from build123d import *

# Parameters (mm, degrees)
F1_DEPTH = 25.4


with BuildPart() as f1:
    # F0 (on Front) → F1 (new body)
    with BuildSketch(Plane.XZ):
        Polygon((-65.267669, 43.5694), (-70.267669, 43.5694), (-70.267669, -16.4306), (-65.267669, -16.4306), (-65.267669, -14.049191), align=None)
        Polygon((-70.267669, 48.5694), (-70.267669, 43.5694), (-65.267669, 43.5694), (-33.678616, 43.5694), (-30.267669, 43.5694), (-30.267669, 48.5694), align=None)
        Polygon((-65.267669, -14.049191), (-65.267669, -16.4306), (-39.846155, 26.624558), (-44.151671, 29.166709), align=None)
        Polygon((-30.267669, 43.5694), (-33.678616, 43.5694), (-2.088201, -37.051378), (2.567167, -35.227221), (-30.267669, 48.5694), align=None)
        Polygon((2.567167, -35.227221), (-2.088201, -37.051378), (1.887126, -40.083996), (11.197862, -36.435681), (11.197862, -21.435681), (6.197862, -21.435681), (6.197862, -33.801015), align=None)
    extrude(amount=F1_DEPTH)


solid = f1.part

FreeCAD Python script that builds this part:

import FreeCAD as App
import Part
import Sketcher

V = App.Vector
Q = App.Units.Quantity


def add_polygon(sketch, points):
    """Adds a closed chain of lines whose ends are joined by coincident constraints."""
    first, n = sketch.GeometryCount, len(points)
    for a, b in zip(points, points[1:] + points[:1]):
        sketch.addGeometry(Part.LineSegment(App.Vector(*a, 0), App.Vector(*b, 0)), False)
    for i in range(n):
        sketch.addConstraint(Sketcher.Constraint("Coincident", first + i, 2, first + (i + 1) % n, 1))

doc = App.newDocument("Part")
params = doc.addObject("Spreadsheet::Sheet", "Params")
for row, (alias, value) in enumerate([
    ("sketch1_width", "5 mm"),
    ("sketch1_width2", "40 mm"),
    ("sketch1_height", "15 mm"),
    ("sketch1_height2", "65 mm"),
    ("sketch1_length", "50 mm"),
    ("pad1_length", "25.4 mm"),
], start=1):
    params.set(f"A{row}", alias)
    params.set(f"B{row}", "=" + value)
    params.setAlias(f"B{row}", alias)

body = doc.addObject("PartDesign::Body", "Body")

# Sketch on XZ plane
sketch1 = doc.addObject("Sketcher::SketchObject", "Sketch")
body.addObject(sketch1)
sketch1.AttachmentSupport = (doc.XZ_Plane, [""])
sketch1.MapMode = "FlatFace"
add_polygon(sketch1, [(-70.3, -16.4), (-65.3, -16.4), (-39.8, 26.6), (-44.2, 29.2), (-65.3, -14), (-65.3, 43.6), (-33.7, 43.6), (-2.1, -37.1), (1.9, -40.1), (11.2, -36.4), (11.2, -21.4), (6.2, -21.4), (6.2, -33.8), (2.6, -35.2), (-30.3, 48.6), (-70.3, 48.6)])  # lines 0-15
sketch1.addConstraint(Sketcher.Constraint("Horizontal", 0))
sketch1.addConstraint(Sketcher.Constraint("Vertical", 4))
sketch1.addConstraint(Sketcher.Constraint("Horizontal", 5))
sketch1.addConstraint(Sketcher.Constraint("Vertical", 9))
sketch1.addConstraint(Sketcher.Constraint("Horizontal", 10))
sketch1.addConstraint(Sketcher.Constraint("Vertical", 11))
sketch1.addConstraint(Sketcher.Constraint("Horizontal", 14))
sketch1.addConstraint(Sketcher.Constraint("Vertical", 15))
sketch1.addConstraint(Sketcher.Constraint("Perpendicular", 1, 2))
sketch1.addConstraint(Sketcher.Constraint("Perpendicular", 6, 8))
sketch1.addConstraint(Sketcher.Constraint("Perpendicular", 8, 13))
sketch1.addConstraint(Sketcher.Constraint("Vertical", 0, 2, 3, 2))
sketch1.addConstraint(Sketcher.Constraint("Equal", 0, 10))
sketch1.addConstraint(Sketcher.Constraint("Equal", 2, 7))
sketch1.addConstraint(Sketcher.Constraint("DistanceX", 0, 1, 0, 2, Q("5 mm")))
sketch1.addConstraint(Sketcher.Constraint("DistanceX", 14, 2, 14, 1, Q("40 mm")))
sketch1.addConstraint(Sketcher.Constraint("DistanceY", 9, 1, 9, 2, Q("15 mm")))
sketch1.addConstraint(Sketcher.Constraint("DistanceY", 15, 2, 15, 1, Q("65 mm")))
sketch1.addConstraint(Sketcher.Constraint("Distance", 1, Q("50 mm")))
sketch1.addConstraint(Sketcher.Constraint("Distance", 2, Q("5 mm")))
sketch1.addConstraint(Sketcher.Constraint("Distance", 8, Q("10 mm")))
sketch1.addConstraint(Sketcher.Constraint("Distance", 13, Q("90.000001 mm")))
sketch1.addConstraint(Sketcher.Constraint("DistanceY", 0, 2, 4, 2, Q("60 mm")))
sketch1.addConstraint(Sketcher.Constraint("DistanceX", 2, 2, 13, 2, Q("13.884002 mm")))
sketch1.addConstraint(Sketcher.Constraint("DistanceY", 4, 1, 4, 2, Q("57.618591 mm")))
sketch1.addConstraint(Sketcher.Constraint("DistanceY", 0, 2, -1, 1, Q("16.4306 mm")))
sketch1.addConstraint(Sketcher.Constraint("DistanceX", 6, 2, -1, 1, Q("2.088201 mm")))
sketch1.addConstraint(Sketcher.Constraint("Distance", 12, Q("3.90077 mm")))
sketch1.addConstraint(Sketcher.Constraint("DistanceX", 5, 1, 5, 2, Q("31.589053 mm")))
sketch1.addConstraint(Sketcher.Constraint("DistanceY", 11, 2, 11, 1, Q("12.365334 mm")))
sketch1.addConstraint(Sketcher.Constraint("DistanceX", 0, 2, -1, 1, Q("65.267669 mm")))
sketch1.addConstraint(Sketcher.Constraint("DistanceY", 8, 2, -1, 1, Q("36.435681 mm")))
sketch1.setExpression("Constraints[30]", "Params.sketch1_width")
sketch1.setExpression("Constraints[31]", "Params.sketch1_width2")
sketch1.setExpression("Constraints[32]", "Params.sketch1_height")
sketch1.setExpression("Constraints[33]", "Params.sketch1_height2")
sketch1.setExpression("Constraints[34]", "Params.sketch1_length")
pad1 = doc.addObject("PartDesign::Pad", "Pad")
body.addObject(pad1)
pad1.Profile = sketch1
pad1.setExpression("Length", "Params.pad1_length")

doc.recompute()
